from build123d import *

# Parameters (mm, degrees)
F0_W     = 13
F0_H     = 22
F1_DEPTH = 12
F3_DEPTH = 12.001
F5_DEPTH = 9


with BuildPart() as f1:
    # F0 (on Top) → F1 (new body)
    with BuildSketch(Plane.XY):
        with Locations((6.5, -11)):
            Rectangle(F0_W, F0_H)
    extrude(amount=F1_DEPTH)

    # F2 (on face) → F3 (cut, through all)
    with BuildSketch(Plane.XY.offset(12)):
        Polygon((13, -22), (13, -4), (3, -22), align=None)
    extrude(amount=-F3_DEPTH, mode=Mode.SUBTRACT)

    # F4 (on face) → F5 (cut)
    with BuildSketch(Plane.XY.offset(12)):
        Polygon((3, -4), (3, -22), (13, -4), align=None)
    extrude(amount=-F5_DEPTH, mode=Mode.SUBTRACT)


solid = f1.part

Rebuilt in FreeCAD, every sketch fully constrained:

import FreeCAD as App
import Part
import Sketcher

V = App.Vector


def add_polygon(sketch, points):
    """Adds a closed chain of lines whose ends are joined by coincident constraints."""
    first, n = sketch.GeometryCount, len(points)
    for a, b in zip(points, points[1:] + points[:1]):
        sketch.addGeometry(Part.LineSegment(App.Vector(*a, 0), App.Vector(*b, 0)), False)
    for i in range(n):
        sketch.addConstraint(Sketcher.Constraint("Coincident", first + i, 2, first + (i + 1) % n, 1))

doc = App.newDocument("Part")
params = doc.addObject("Spreadsheet::Sheet", "Params")
for row, (alias, value) in enumerate([
    ("sketch1_width", "13 mm"),
    ("sketch1_height", "22 mm"),
    ("pad1_length", "12 mm"),
    ("sketch2_width", "10 mm"),
    ("sketch2_height", "18 mm"),
    ("sketch3_width", "10 mm"),
    ("sketch3_height", "18 mm"),
    ("pocket2_length", "9 mm"),
], start=1):
    params.set(f"A{row}", alias)
    params.set(f"B{row}", "=" + value)
    params.setAlias(f"B{row}", alias)

body = doc.addObject("PartDesign::Body", "Body")

sketch1 = body.newObject("Sketcher::SketchObject", "Sketch")
sketch1.AttachmentSupport = (doc.getObject("XY_Plane"), [""])
sketch1.MapMode = "FlatFace"
add_polygon(sketch1, [(0, 0), (0, -22), (13, -22), (13, 0)])
sketch1.addConstraint(Sketcher.Constraint("Vertical", 0))
sketch1.addConstraint(Sketcher.Constraint("Horizontal", 1))
sketch1.addConstraint(Sketcher.Constraint("Vertical", 2))
sketch1.addConstraint(Sketcher.Constraint("Horizontal", 3))
sketch1.addConstraint(Sketcher.Constraint("Coincident", 3, 2, -1, 1))
sketch1.addConstraint(Sketcher.Constraint("DistanceX", 1, 1, 1, 2, 13.0))
sketch1.addConstraint(Sketcher.Constraint("DistanceY", 0, 2, 0, 1, 22.0))
sketch1.setExpression("Constraints[9]", "Params.sketch1_width")
sketch1.setExpression("Constraints[10]", "Params.sketch1_height")
pad1 = body.newObject("PartDesign::Pad", "Pad")
pad1.Profile = sketch1
pad1.setExpression("Length", "Params.pad1_length")

sketch2 = body.newObject("Sketcher::SketchObject", "Sketch001")
sketch2.AttachmentSupport = (doc.getObject("XY_Plane"), [""])
sketch2.MapMode = "FlatFace"
sketch2.AttachmentOffset = App.Placement(V(0, 0, 12), App.Rotation())
add_polygon(sketch2, [(13, -22), (13, -4), (3, -22)])
sketch2.addConstraint(Sketcher.Constraint("Vertical", 0))
sketch2.addConstraint(Sketcher.Constraint("Horizontal", 2))
sketch2.addConstraint(Sketcher.Constraint("DistanceX", 2, 1, 2, 2, 10.0))
sketch2.addConstraint(Sketcher.Constraint("DistanceY", 0, 1, 0, 2, 18.0))
sketch2.addConstraint(Sketcher.Constraint("DistanceX", -1, 1, 0, 2, 13.0))
sketch2.addConstraint(Sketcher.Constraint("DistanceY", 0, 2, -1, 1, 4.0))
sketch2.setExpression("Constraints[5]", "Params.sketch2_width")
sketch2.setExpression("Constraints[6]", "Params.sketch2_height")
pocket1 = body.newObject("PartDesign::Pocket", "Pocket")
pocket1.Profile = sketch2
pocket1.Type = "ThroughAll"

sketch3 = body.newObject("Sketcher::SketchObject", "Sketch002")
sketch3.AttachmentSupport = (doc.getObject("XY_Plane"), [""])
sketch3.MapMode = "FlatFace"
sketch3.AttachmentOffset = App.Placement(V(0, 0, 12), App.Rotation())
add_polygon(sketch3, [(3, -4), (3, -22), (13, -4)])
sketch3.addConstraint(Sketcher.Constraint("Vertical", 0))
sketch3.addConstraint(Sketcher.Constraint("Horizontal", 2))
sketch3.addConstraint(Sketcher.Constraint("DistanceX", 2, 2, 2, 1, 10.0))
sketch3.addConstraint(Sketcher.Constraint("DistanceY", 0, 2, 0, 1, 18.0))
sketch3.addConstraint(Sketcher.Constraint("DistanceX", -1, 1, 0, 2, 3.0))
sketch3.addConstraint(Sketcher.Constraint("DistanceY", 0, 2, -1, 1, 22.0))
sketch3.setExpression("Constraints[5]", "Params.sketch3_width")
sketch3.setExpression("Constraints[6]", "Params.sketch3_height")
pocket2 = body.newObject("PartDesign::Pocket", "Pocket001")
pocket2.Profile = sketch3
pocket2.setExpression("Length", "Params.pocket2_length")

doc.recompute()
